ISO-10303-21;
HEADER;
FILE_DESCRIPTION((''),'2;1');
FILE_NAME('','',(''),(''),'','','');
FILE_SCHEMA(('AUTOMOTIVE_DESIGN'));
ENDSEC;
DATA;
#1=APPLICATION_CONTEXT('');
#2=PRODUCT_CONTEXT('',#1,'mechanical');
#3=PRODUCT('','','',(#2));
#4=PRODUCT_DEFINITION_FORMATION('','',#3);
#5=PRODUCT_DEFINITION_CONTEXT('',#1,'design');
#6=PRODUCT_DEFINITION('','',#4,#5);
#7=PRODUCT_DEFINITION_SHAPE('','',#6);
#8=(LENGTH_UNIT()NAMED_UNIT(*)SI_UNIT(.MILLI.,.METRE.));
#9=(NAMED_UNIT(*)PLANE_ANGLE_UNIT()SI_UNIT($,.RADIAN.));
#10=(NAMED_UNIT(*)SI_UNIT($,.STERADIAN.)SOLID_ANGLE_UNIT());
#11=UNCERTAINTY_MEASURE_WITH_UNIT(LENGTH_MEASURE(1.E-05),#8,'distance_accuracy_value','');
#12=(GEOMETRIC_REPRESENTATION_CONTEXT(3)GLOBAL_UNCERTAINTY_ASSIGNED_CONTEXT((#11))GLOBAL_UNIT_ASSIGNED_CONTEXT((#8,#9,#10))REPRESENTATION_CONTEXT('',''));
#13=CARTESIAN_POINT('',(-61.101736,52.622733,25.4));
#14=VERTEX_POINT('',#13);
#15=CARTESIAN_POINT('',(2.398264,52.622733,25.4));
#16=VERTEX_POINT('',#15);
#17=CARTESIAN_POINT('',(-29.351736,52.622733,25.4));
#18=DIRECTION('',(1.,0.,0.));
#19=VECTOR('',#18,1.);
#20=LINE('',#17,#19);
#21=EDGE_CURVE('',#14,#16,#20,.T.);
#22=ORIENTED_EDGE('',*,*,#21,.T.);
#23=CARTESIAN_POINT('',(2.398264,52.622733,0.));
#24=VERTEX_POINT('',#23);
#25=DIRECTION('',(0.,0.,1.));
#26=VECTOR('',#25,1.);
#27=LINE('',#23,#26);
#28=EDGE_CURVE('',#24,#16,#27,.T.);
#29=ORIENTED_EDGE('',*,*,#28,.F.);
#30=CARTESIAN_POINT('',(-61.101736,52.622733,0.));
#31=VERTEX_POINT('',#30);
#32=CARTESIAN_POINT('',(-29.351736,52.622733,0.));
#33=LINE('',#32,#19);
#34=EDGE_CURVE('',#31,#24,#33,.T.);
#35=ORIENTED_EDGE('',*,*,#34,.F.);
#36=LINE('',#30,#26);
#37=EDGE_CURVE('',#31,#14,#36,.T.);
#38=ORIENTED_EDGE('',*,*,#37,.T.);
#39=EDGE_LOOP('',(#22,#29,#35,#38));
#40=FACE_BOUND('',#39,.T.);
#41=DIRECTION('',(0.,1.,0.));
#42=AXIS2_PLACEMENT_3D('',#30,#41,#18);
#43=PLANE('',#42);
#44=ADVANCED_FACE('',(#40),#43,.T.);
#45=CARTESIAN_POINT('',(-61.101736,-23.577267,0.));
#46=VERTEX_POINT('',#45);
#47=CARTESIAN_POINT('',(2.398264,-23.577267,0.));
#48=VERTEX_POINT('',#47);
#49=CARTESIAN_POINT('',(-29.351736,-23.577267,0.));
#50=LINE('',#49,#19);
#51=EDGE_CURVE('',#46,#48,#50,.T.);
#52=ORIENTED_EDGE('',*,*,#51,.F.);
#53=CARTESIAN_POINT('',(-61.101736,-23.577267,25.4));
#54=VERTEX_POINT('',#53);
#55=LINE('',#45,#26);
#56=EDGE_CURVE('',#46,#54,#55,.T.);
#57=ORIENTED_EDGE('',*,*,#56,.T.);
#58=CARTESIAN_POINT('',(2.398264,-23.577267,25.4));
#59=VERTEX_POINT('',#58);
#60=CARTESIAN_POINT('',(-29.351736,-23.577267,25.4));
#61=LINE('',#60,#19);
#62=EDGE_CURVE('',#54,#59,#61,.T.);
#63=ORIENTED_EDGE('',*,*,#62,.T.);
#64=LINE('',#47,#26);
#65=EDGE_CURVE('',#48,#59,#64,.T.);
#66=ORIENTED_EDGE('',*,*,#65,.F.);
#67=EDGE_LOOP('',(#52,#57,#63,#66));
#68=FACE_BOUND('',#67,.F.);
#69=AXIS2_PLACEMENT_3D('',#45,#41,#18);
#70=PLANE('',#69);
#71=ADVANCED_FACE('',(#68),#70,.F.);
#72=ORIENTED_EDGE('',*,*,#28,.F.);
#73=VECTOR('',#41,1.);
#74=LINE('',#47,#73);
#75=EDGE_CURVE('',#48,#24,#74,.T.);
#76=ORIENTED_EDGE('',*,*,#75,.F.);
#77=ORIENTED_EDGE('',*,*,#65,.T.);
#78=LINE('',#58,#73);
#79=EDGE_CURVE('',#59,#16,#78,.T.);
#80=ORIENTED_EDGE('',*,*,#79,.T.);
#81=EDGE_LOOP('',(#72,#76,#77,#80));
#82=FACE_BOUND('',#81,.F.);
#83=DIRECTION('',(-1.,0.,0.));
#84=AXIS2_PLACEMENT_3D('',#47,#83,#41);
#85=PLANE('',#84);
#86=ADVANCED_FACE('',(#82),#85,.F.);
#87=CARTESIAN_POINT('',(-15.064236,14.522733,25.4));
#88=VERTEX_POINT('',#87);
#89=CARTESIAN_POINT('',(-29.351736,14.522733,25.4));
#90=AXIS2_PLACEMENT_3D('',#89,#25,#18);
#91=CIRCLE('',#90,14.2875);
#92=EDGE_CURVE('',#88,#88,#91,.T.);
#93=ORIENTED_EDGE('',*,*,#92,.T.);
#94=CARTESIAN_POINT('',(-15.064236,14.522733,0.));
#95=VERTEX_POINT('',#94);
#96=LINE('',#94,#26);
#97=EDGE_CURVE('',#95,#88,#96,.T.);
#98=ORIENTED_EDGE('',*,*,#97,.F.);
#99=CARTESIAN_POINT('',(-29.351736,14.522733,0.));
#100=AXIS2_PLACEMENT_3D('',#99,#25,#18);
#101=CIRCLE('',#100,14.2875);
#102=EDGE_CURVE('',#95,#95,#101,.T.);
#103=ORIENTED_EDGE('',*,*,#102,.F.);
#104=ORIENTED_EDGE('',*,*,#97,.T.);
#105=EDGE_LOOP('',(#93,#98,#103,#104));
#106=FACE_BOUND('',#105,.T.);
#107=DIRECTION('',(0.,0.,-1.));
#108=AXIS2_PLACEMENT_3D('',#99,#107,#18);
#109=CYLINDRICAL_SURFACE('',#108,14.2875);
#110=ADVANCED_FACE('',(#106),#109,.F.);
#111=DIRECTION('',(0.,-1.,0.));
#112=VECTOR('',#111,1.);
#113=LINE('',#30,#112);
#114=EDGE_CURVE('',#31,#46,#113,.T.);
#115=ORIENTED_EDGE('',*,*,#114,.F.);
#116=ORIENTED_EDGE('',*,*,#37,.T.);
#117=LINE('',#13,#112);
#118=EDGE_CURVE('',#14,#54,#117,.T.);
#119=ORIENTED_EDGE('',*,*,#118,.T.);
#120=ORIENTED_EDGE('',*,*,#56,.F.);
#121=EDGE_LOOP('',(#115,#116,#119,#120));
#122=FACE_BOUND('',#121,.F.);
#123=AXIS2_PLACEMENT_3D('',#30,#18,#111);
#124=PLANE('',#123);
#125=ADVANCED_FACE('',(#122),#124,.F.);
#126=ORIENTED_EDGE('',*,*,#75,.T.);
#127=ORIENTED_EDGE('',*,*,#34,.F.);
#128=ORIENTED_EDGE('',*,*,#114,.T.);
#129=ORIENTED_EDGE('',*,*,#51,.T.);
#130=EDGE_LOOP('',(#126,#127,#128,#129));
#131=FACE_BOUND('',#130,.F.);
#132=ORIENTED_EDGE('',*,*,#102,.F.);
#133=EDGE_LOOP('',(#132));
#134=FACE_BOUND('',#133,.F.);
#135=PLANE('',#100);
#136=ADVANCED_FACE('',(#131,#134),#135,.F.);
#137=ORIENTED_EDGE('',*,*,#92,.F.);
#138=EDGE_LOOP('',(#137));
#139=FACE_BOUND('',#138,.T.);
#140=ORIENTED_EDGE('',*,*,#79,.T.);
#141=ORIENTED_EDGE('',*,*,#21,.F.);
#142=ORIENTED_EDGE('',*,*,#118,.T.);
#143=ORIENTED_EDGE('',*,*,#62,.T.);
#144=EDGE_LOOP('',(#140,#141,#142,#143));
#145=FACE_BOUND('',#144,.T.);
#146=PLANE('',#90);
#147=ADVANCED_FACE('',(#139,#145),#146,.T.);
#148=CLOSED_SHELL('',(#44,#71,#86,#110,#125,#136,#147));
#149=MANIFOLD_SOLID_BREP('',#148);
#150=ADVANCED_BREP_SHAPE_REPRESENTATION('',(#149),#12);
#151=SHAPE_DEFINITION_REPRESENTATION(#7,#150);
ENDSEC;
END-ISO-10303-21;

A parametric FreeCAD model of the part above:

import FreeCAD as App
import Part
import Sketcher
from FreeCAD import Vector
Q = App.Units.Quantity

doc = App.newDocument("Part")
body = doc.addObject("PartDesign::Body", "Body")

sketch1 = body.newObject("Sketcher::SketchObject", "Sketch")
sketch1.AttachmentSupport = (doc.getObject("XY_Plane"), [""])
sketch1.MapMode = "FlatFace"
sketch1.addGeometry([
    Part.LineSegment(Vector(2, 53, 0), Vector(-61, 53, 0)),
    Part.LineSegment(Vector(-61, 53, 0), Vector(-61, -24, 0)),
    Part.LineSegment(Vector(-61, -24, 0), Vector(2, -24, 0)),
    Part.LineSegment(Vector(2, -24, 0), Vector(2, 53, 0)),
    Part.Circle(Vector(-29, 15, 0), Vector(0, 0, 1), 14),
], False)
sketch1.addConstraint([
    Sketcher.Constraint("Coincident", 0, 2, 1, 1),
    Sketcher.Constraint("Coincident", 1, 2, 2, 1),
    Sketcher.Constraint("Coincident", 2, 2, 3, 1),
    Sketcher.Constraint("Coincident", 3, 2, 0, 1),
    Sketcher.Constraint("Horizontal", 0),
    Sketcher.Constraint("Vertical", 1),
    Sketcher.Constraint("Horizontal", 2),
    Sketcher.Constraint("Vertical", 3),
    Sketcher.Constraint("DistanceY", 1, 2, 1, 1, Q("3 in")),
    Sketcher.Constraint("Diameter", 4, Q("1.125 in")),
    Sketcher.Constraint("DistanceX", 0, 2, 0, 1, Q("2.5 in")),
    Sketcher.Constraint("DistanceY", 4, 3, 0, 2, Q("1.5 in")),
    Sketcher.Constraint("DistanceX", 0, 2, 4, 3, Q("1.25 in")),
    Sketcher.Constraint("DistanceX", 4, 3, -1, 1, Q("29.351736 mm")),
    Sketcher.Constraint("DistanceY", -1, 1, 4, 3, Q("14.522733 mm")),
])
pad1 = body.newObject("PartDesign::Pad", "Pad")
pad1.Profile = sketch1
pad1.Length = Q("1 in")

doc.recompute()
